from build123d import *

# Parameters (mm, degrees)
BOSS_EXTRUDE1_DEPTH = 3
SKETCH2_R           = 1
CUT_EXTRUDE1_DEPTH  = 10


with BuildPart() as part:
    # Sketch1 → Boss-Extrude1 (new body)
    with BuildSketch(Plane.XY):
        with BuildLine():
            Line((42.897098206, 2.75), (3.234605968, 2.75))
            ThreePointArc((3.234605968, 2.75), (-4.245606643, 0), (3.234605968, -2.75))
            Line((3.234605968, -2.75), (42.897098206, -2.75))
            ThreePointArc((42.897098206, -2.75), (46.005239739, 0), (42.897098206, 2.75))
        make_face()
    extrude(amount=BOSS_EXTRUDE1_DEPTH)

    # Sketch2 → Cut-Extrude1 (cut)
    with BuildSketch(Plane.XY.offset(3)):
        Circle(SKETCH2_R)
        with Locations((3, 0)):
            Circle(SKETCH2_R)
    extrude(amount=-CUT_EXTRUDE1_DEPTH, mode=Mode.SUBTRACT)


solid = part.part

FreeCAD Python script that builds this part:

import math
import FreeCAD as App
import Part
import Sketcher

doc = App.newDocument("Part")
body = doc.addObject("PartDesign::Body", "Body")

sketch1 = body.newObject("Sketcher::SketchObject", "Sketch")
sketch1.AttachmentSupport = (doc.getObject("XY_Plane"), [""])
sketch1.MapMode = "FlatFace"
sketch1.addGeometry([
    Part.LineSegment(App.Vector(42.897098, 2.75, 0), App.Vector(3.234606, 2.75, 0)),
    Part.ArcOfCircle(Part.Circle(App.Vector(0, 0, 0), App.Vector(0, 0, 1), 4.245607), math.radians(40.370551), math.radians(319.629449)),
    Part.LineSegment(App.Vector(3.234606, -2.75, 0), App.Vector(42.897098, -2.75, 0)),
    Part.ArcOfCircle(Part.Circle(App.Vector(43.234606, 0, 0), App.Vector(0, 0, 1), 2.770634), math.radians(-96.996926), math.radians(96.996926)),
], False)
sketch1.addConstraint([
    Sketcher.Constraint("Coincident", 0, 2, 1, 1),
    Sketcher.Constraint("Coincident", 1, 2, 2, 1),
    Sketcher.Constraint("Coincident", 2, 2, 3, 1),
    Sketcher.Constraint("Coincident", 3, 2, 0, 1),
    Sketcher.Constraint("Horizontal", 0),
    Sketcher.Constraint("Horizontal", 2),
    Sketcher.Constraint("Coincident", 1, 3, -1, 1),
    Sketcher.Constraint("Symmetric", 2, 2, 3, 2, -1),
    Sketcher.Constraint("DistanceX", 0, 2, 3, 3, 40.0),
    Sketcher.Constraint("DistanceY", 1, 2, 0, 2, 5.5),
    Sketcher.Constraint("Radius", 1, 4.245607),
    Sketcher.Constraint("Radius", 3, 2.770634),
])
pad1 = body.newObject("PartDesign::Pad", "Pad")
pad1.Profile = sketch1
pad1.Length = 3

sketch2 = body.newObject("Sketcher::SketchObject", "Sketch001")
sketch2.AttachmentSupport = (doc.getObject("XY_Plane"), [""])
sketch2.MapMode = "FlatFace"
sketch2.AttachmentOffset = App.Placement(App.Vector(0, 0, 3), App.Rotation())
sketch2.addGeometry([
    Part.Circle(App.Vector(0, 0, 0), App.Vector(0, 0, 1), 1),
    Part.Circle(App.Vector(3, 0, 0), App.Vector(0, 0, 1), 1),
], False)
sketch2.addConstraint([
    Sketcher.Constraint("Coincident", 0, 3, -1, 1),
    Sketcher.Constraint("Equal", 0, 1),
    Sketcher.Constraint("PointOnObject", 1, 3, -1),
    Sketcher.Constraint("Diameter", 0, 2.0),
    Sketcher.Constraint("DistanceX", -1, 1, 1, 3, 3.0),
])
pocket1 = body.newObject("PartDesign::Pocket", "Pocket")
pocket1.Profile = sketch2
pocket1.Length = 10

doc.recompute()
